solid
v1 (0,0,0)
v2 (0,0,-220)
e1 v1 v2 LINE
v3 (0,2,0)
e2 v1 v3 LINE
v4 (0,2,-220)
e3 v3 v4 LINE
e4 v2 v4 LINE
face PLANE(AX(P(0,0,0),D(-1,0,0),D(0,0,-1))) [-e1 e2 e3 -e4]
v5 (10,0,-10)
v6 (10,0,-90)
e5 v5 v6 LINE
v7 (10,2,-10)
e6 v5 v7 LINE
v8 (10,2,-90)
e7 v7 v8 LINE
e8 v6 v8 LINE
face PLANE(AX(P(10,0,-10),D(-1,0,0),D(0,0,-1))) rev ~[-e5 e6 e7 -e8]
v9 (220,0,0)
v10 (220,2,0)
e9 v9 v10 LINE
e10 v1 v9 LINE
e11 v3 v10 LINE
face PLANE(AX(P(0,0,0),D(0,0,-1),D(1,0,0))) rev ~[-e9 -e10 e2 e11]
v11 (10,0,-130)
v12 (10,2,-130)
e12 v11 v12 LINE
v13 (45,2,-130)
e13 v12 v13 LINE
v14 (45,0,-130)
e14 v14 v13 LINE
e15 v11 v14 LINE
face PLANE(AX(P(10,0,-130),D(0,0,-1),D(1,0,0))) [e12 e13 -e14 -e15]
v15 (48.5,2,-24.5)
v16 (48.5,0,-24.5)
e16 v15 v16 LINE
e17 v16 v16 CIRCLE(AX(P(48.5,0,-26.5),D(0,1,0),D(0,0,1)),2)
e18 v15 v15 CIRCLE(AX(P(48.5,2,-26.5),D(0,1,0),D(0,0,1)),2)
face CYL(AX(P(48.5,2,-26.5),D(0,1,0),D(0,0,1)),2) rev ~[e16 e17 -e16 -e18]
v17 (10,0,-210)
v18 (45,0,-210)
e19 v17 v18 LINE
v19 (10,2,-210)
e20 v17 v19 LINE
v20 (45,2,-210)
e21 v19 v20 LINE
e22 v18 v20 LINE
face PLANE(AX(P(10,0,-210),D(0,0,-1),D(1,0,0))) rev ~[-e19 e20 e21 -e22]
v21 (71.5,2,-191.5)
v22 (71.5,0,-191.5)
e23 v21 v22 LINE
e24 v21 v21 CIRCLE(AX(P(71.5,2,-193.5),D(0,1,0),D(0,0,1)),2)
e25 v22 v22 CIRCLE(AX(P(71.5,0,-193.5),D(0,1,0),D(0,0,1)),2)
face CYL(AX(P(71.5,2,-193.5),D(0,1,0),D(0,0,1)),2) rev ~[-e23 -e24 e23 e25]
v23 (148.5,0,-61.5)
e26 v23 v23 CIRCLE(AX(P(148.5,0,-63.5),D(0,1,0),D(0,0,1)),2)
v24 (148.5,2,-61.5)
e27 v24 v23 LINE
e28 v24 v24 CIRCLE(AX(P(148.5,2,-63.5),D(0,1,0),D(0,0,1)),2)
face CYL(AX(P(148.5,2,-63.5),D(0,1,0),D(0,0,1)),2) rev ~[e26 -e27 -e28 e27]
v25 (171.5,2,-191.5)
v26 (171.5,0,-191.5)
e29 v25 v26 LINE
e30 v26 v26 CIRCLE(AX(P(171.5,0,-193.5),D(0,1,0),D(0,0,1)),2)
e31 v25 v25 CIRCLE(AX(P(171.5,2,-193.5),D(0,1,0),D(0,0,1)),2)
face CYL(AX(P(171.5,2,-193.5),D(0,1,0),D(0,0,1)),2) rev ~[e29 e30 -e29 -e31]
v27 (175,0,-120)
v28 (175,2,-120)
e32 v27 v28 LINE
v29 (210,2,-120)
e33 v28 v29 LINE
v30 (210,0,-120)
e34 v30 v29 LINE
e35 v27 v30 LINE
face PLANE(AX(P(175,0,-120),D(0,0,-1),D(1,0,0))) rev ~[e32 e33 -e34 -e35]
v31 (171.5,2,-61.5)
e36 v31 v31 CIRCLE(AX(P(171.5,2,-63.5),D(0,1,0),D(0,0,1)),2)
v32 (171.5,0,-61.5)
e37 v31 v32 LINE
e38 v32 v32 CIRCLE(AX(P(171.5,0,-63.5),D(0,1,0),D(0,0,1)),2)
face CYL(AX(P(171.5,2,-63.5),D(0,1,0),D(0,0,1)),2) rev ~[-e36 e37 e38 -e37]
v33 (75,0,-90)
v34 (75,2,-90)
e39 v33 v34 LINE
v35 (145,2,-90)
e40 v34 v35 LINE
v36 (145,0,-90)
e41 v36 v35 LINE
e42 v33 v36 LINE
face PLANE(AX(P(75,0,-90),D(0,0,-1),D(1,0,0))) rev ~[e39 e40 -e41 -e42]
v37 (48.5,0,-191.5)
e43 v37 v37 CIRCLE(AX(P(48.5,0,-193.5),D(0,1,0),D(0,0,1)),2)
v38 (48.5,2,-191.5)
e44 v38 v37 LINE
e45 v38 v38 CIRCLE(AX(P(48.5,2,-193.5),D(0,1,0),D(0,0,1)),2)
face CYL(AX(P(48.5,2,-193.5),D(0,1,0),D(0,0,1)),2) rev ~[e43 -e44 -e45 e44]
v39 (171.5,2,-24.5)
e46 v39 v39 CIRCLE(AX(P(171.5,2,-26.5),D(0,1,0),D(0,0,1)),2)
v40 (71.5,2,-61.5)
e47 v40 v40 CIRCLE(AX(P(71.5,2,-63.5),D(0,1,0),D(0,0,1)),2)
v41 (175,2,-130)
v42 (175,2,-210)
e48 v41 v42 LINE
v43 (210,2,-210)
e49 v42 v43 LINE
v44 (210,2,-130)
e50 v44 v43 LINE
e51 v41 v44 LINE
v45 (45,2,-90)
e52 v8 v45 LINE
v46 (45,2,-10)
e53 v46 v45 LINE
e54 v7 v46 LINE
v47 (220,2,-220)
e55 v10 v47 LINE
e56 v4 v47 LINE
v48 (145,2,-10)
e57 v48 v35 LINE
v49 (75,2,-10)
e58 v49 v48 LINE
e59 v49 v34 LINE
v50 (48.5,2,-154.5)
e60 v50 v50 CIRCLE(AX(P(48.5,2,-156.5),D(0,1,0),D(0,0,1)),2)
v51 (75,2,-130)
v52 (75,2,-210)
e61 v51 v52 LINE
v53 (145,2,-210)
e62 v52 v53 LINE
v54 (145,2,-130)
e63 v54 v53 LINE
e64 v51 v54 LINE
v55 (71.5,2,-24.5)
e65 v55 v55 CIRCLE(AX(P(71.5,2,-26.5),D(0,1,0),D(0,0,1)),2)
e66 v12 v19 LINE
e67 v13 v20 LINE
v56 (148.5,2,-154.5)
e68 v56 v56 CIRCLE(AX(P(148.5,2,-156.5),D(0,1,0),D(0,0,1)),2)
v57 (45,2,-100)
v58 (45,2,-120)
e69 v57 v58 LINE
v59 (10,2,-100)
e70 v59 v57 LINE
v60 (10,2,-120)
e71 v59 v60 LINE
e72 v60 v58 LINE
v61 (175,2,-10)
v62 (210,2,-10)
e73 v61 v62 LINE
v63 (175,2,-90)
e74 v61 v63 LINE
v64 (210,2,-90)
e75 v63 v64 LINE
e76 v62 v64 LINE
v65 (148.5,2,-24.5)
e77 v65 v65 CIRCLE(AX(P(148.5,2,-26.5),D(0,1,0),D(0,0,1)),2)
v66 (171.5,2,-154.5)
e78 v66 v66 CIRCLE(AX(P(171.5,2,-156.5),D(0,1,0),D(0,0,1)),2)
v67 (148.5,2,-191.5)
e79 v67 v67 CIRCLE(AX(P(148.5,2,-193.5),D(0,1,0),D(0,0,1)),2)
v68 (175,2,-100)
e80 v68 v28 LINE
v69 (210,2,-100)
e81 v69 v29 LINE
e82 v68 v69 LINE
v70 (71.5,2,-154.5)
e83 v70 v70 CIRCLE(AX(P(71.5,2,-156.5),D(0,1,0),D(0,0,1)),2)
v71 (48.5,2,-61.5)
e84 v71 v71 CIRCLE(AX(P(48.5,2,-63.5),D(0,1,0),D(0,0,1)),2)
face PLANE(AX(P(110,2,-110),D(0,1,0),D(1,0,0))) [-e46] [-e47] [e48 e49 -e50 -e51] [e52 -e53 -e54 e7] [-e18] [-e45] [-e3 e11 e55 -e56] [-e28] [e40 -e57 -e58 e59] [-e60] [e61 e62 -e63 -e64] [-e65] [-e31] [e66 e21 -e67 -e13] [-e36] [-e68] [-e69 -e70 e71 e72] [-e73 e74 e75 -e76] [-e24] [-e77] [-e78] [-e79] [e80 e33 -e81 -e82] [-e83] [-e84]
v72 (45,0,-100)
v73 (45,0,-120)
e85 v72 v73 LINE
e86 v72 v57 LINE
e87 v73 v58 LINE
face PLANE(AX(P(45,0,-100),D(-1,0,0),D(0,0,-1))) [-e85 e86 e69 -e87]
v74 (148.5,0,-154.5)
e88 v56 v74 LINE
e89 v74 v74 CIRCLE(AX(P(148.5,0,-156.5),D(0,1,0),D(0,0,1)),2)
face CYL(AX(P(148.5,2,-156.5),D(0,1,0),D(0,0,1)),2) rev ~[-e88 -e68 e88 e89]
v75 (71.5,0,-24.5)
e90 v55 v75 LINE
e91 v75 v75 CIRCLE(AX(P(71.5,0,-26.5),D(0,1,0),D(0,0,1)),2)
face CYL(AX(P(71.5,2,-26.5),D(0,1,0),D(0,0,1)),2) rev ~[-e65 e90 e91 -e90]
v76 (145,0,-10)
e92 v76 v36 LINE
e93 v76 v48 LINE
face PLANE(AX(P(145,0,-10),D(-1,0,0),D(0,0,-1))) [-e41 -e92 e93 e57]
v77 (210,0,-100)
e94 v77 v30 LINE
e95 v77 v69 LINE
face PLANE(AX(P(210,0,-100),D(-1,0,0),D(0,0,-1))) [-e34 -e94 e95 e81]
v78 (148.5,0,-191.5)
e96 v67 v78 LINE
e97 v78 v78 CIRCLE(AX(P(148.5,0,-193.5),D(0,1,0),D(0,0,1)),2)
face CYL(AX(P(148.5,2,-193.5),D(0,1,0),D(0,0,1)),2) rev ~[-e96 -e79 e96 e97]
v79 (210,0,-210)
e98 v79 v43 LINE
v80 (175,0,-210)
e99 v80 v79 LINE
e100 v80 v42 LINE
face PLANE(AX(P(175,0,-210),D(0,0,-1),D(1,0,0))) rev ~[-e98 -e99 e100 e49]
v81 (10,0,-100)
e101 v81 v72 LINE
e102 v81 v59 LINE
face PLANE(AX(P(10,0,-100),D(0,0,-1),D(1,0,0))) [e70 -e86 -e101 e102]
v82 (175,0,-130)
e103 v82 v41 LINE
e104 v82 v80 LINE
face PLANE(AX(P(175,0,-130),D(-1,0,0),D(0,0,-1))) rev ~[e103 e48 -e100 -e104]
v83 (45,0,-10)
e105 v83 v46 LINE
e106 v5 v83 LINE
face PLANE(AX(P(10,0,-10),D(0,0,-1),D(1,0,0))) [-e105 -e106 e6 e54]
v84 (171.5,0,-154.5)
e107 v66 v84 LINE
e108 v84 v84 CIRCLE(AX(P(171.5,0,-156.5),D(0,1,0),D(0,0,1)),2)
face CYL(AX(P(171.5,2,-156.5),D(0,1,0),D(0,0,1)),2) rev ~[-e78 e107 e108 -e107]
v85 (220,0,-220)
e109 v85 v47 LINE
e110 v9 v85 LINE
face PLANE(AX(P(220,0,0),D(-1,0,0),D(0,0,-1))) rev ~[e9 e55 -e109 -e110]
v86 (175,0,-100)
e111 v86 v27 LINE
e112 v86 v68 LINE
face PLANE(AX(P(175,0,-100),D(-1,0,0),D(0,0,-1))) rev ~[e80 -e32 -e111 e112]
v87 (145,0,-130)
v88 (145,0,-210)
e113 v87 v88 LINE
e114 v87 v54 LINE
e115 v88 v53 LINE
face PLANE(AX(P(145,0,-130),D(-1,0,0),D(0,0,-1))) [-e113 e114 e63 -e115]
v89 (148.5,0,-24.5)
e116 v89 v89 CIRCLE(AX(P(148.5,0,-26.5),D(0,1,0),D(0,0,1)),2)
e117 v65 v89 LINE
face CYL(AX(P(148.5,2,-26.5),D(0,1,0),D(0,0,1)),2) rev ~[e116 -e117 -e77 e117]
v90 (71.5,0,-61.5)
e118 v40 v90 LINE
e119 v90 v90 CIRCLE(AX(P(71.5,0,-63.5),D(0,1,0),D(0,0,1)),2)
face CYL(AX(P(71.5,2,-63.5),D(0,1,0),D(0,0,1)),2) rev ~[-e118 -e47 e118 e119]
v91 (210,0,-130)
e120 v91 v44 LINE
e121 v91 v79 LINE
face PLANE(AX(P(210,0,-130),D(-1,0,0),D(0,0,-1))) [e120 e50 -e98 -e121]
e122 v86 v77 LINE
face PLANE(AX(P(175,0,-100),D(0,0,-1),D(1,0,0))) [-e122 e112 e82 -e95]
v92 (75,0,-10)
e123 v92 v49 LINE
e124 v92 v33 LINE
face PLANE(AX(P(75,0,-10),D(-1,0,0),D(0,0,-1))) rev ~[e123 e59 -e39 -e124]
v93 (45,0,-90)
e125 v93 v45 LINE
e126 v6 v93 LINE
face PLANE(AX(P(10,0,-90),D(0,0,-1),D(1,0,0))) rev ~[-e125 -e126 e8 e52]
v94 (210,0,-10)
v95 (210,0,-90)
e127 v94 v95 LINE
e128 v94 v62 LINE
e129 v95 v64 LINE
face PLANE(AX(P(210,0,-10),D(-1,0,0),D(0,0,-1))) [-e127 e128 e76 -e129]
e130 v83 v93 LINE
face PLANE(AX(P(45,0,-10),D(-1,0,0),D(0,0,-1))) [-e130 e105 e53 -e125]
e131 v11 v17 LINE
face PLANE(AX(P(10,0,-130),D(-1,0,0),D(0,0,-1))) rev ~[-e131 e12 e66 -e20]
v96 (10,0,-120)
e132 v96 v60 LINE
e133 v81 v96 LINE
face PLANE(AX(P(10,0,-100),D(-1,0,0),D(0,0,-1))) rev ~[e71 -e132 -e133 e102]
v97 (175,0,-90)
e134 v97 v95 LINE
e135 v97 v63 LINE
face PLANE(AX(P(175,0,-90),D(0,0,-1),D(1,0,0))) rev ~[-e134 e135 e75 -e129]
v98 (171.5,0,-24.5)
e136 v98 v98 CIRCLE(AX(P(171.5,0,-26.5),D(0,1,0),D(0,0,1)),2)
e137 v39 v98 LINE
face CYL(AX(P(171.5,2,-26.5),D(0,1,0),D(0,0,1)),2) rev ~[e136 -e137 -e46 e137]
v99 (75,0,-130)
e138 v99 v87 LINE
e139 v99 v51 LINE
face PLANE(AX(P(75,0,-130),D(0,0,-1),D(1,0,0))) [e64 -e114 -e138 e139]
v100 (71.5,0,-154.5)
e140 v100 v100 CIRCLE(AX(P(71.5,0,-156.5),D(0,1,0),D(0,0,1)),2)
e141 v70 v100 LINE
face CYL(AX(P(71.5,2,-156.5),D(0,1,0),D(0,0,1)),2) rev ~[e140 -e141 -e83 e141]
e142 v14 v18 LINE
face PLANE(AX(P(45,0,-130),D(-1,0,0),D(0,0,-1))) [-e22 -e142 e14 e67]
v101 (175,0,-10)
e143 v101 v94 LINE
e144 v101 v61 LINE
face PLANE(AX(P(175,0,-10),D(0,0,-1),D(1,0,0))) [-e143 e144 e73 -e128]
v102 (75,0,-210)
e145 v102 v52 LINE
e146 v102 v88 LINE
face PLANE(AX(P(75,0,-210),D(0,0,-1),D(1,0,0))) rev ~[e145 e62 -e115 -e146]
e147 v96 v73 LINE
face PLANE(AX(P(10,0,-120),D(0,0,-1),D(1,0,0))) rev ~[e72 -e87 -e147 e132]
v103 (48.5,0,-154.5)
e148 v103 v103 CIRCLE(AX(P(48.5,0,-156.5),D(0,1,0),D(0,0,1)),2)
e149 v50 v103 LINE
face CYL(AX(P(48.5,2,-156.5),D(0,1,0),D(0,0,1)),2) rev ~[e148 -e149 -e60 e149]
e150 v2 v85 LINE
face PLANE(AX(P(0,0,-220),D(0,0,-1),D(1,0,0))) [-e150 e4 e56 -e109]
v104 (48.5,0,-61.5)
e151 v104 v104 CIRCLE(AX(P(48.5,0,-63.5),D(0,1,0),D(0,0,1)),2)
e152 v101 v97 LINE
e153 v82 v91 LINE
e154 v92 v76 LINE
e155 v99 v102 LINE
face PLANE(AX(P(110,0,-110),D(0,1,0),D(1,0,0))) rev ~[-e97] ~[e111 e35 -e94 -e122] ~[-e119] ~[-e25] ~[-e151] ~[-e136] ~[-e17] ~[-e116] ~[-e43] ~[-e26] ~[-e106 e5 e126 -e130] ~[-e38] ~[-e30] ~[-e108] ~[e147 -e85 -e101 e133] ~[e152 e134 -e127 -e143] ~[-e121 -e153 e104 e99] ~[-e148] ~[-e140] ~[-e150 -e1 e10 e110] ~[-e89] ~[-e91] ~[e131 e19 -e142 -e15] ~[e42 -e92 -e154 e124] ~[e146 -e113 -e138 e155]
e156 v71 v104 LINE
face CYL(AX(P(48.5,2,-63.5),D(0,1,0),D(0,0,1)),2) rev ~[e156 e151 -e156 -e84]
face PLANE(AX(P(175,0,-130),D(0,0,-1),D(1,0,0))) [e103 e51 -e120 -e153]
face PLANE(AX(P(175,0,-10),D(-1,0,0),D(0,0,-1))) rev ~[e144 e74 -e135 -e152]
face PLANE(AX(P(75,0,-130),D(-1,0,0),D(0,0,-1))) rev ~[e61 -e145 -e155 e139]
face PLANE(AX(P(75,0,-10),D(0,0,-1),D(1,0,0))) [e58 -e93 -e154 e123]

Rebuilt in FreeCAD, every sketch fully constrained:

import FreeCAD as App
import Part
import Sketcher
from FreeCAD import Vector

doc = App.newDocument("Part")
body = doc.addObject("PartDesign::Body", "Body")

# Sketch on XZ plane
sketch1 = body.newObject("Sketcher::SketchObject", "Sketch")
sketch1.AttachmentSupport = (doc.getObject("XZ_Plane"), [""])
sketch1.MapMode = "FlatFace"
sketch1.addGeometry([
    Part.LineSegment(Vector(0, -220, 0), Vector(0, 0, 0)),  # 0
    Part.LineSegment(Vector(0, 0, 0), Vector(220, 0, 0)),  # 1
    Part.LineSegment(Vector(220, 0, 0), Vector(220, -220, 0)),  # 2
    Part.LineSegment(Vector(220, -220, 0), Vector(0, -220, 0)),  # 3
    Part.LineSegment(Vector(45, -10, 0), Vector(10, -10, 0)),  # 4
    Part.LineSegment(Vector(10, -10, 0), Vector(10, -90, 0)),  # 5
    Part.LineSegment(Vector(10, -90, 0), Vector(45, -90, 0)),  # 6
    Part.LineSegment(Vector(45, -90, 0), Vector(45, -10, 0)),  # 7
    Part.LineSegment(Vector(145, -10, 0), Vector(75, -10, 0)),  # 8
    Part.LineSegment(Vector(75, -10, 0), Vector(75, -90, 0)),  # 9
    Part.LineSegment(Vector(75, -90, 0), Vector(145, -90, 0)),  # 10
    Part.LineSegment(Vector(145, -90, 0), Vector(145, -10, 0)),  # 11
    Part.LineSegment(Vector(210, -10, 0), Vector(175, -10, 0)),  # 12
    Part.LineSegment(Vector(175, -10, 0), Vector(175, -90, 0)),  # 13
    Part.LineSegment(Vector(175, -90, 0), Vector(210, -90, 0)),  # 14
    Part.LineSegment(Vector(210, -90, 0), Vector(210, -10, 0)),  # 15
    Part.LineSegment(Vector(45, -100, 0), Vector(10, -100, 0)),  # 16
    Part.LineSegment(Vector(10, -100, 0), Vector(10, -120, 0)),  # 17
    Part.LineSegment(Vector(10, -120, 0), Vector(45, -120, 0)),  # 18
    Part.LineSegment(Vector(45, -120, 0), Vector(45, -100, 0)),  # 19
    Part.LineSegment(Vector(45, -130, 0), Vector(10, -130, 0)),  # 20
    Part.LineSegment(Vector(10, -130, 0), Vector(10, -210, 0)),  # 21
    Part.LineSegment(Vector(10, -210, 0), Vector(45, -210, 0)),  # 22
    Part.LineSegment(Vector(45, -210, 0), Vector(45, -130, 0)),  # 23
    Part.LineSegment(Vector(210, -100, 0), Vector(175, -100, 0)),  # 24
    Part.LineSegment(Vector(175, -100, 0), Vector(175, -120, 0)),  # 25
    Part.LineSegment(Vector(175, -120, 0), Vector(210, -120, 0)),  # 26
    Part.LineSegment(Vector(210, -120, 0), Vector(210, -100, 0)),  # 27
    Part.LineSegment(Vector(145, -130, 0), Vector(75, -130, 0)),  # 28
    Part.LineSegment(Vector(75, -130, 0), Vector(75, -210, 0)),  # 29
    Part.LineSegment(Vector(75, -210, 0), Vector(145, -210, 0)),  # 30
    Part.LineSegment(Vector(145, -210, 0), Vector(145, -130, 0)),  # 31
    Part.LineSegment(Vector(210, -130, 0), Vector(175, -130, 0)),  # 32
    Part.LineSegment(Vector(175, -130, 0), Vector(175, -210, 0)),  # 33
    Part.LineSegment(Vector(175, -210, 0), Vector(210, -210, 0)),  # 34
    Part.LineSegment(Vector(210, -210, 0), Vector(210, -130, 0)),  # 35
], False)
sketch1.addConstraint([
    Sketcher.Constraint("Coincident", 0, 2, 1, 1),
    Sketcher.Constraint("Coincident", 1, 2, 2, 1),
    Sketcher.Constraint("Coincident", 2, 2, 3, 1),
    Sketcher.Constraint("Coincident", 3, 2, 0, 1),
    Sketcher.Constraint("Coincident", 4, 2, 5, 1),
    Sketcher.Constraint("Coincident", 5, 2, 6, 1),
    Sketcher.Constraint("Coincident", 6, 2, 7, 1),
    Sketcher.Constraint("Coincident", 7, 2, 4, 1),
    Sketcher.Constraint("Coincident", 8, 2, 9, 1),
    Sketcher.Constraint("Coincident", 9, 2, 10, 1),
    Sketcher.Constraint("Coincident", 10, 2, 11, 1),
    Sketcher.Constraint("Coincident", 11, 2, 8, 1),
    Sketcher.Constraint("Coincident", 12, 2, 13, 1),
    Sketcher.Constraint("Coincident", 13, 2, 14, 1),
    Sketcher.Constraint("Coincident", 14, 2, 15, 1),
    Sketcher.Constraint("Coincident", 15, 2, 12, 1),
    Sketcher.Constraint("Coincident", 16, 2, 17, 1),
    Sketcher.Constraint("Coincident", 17, 2, 18, 1),
    Sketcher.Constraint("Coincident", 18, 2, 19, 1),
    Sketcher.Constraint("Coincident", 19, 2, 16, 1),
    Sketcher.Constraint("Coincident", 20, 2, 21, 1),
    Sketcher.Constraint("Coincident", 21, 2, 22, 1),
    Sketcher.Constraint("Coincident", 22, 2, 23, 1),
    Sketcher.Constraint("Coincident", 23, 2, 20, 1),
    Sketcher.Constraint("Coincident", 24, 2, 25, 1),
    Sketcher.Constraint("Coincident", 25, 2, 26, 1),
    Sketcher.Constraint("Coincident", 26, 2, 27, 1),
    Sketcher.Constraint("Coincident", 27, 2, 24, 1),
    Sketcher.Constraint("Coincident", 28, 2, 29, 1),
    Sketcher.Constraint("Coincident", 29, 2, 30, 1),
    Sketcher.Constraint("Coincident", 30, 2, 31, 1),
    Sketcher.Constraint("Coincident", 31, 2, 28, 1),
    Sketcher.Constraint("Coincident", 32, 2, 33, 1),
    Sketcher.Constraint("Coincident", 33, 2, 34, 1),
    Sketcher.Constraint("Coincident", 34, 2, 35, 1),
    Sketcher.Constraint("Coincident", 35, 2, 32, 1),
    Sketcher.Constraint("Vertical", 0),
    Sketcher.Constraint("Horizontal", 1),
    Sketcher.Constraint("Vertical", 2),
    Sketcher.Constraint("Horizontal", 3),
    Sketcher.Constraint("Horizontal", 4),
    Sketcher.Constraint("Vertical", 5),
    Sketcher.Constraint("Horizontal", 6),
    Sketcher.Constraint("Vertical", 7),
    Sketcher.Constraint("Horizontal", 8),
    Sketcher.Constraint("Vertical", 9),
    Sketcher.Constraint("Horizontal", 10),
    Sketcher.Constraint("Vertical", 11),
    Sketcher.Constraint("Horizontal", 12),
    Sketcher.Constraint("Vertical", 13),
    Sketcher.Constraint("Horizontal", 14),
    Sketcher.Constraint("Vertical", 15),
    Sketcher.Constraint("Horizontal", 16),
    Sketcher.Constraint("Vertical", 17),
    Sketcher.Constraint("Horizontal", 18),
    Sketcher.Constraint("Vertical", 19),
    Sketcher.Constraint("Horizontal", 20),
    Sketcher.Constraint("Vertical", 21),
    Sketcher.Constraint("Horizontal", 22),
    Sketcher.Constraint("Vertical", 23),
    Sketcher.Constraint("Horizontal", 24),
    Sketcher.Constraint("Vertical", 25),
    Sketcher.Constraint("Horizontal", 26),
    Sketcher.Constraint("Vertical", 27),
    Sketcher.Constraint("Horizontal", 28),
    Sketcher.Constraint("Vertical", 29),
    Sketcher.Constraint("Horizontal", 30),
    Sketcher.Constraint("Vertical", 31),
    Sketcher.Constraint("Horizontal", 32),
    Sketcher.Constraint("Vertical", 33),
    Sketcher.Constraint("Horizontal", 34),
    Sketcher.Constraint("Vertical", 35),
    Sketcher.Constraint("Coincident", 0, 2, -1, 1),
    Sketcher.Constraint("Horizontal", 7, 2, 8, 2),
    Sketcher.Constraint("Horizontal", 6, 2, 9, 2),
    Sketcher.Constraint("Horizontal", 11, 2, 12, 2),
    Sketcher.Constraint("Horizontal", 10, 2, 13, 2),
    Sketcher.Constraint("Horizontal", 19, 2, 24, 2),
    Sketcher.Constraint("Horizontal", 18, 2, 25, 2),
    Sketcher.Constraint("Horizontal", 23, 2, 28, 2),
    Sketcher.Constraint("Horizontal", 22, 2, 29, 2),
    Sketcher.Constraint("Horizontal", 31, 2, 32, 2),
    Sketcher.Constraint("Horizontal", 30, 2, 33, 2),
    Sketcher.Constraint("Vertical", 5, 2, 16, 2),
    Sketcher.Constraint("Vertical", 7, 2, 18, 2),
    Sketcher.Constraint("Vertical", 17, 2, 20, 2),
    Sketcher.Constraint("Vertical", 19, 2, 22, 2),
    Sketcher.Constraint("Vertical", 13, 2, 24, 2),
    Sketcher.Constraint("Vertical", 15, 2, 26, 2),
    Sketcher.Constraint("Vertical", 9, 2, 28, 2),
    Sketcher.Constraint("Vertical", 11, 2, 30, 2),
    Sketcher.Constraint("Vertical", 25, 2, 32, 2),
    Sketcher.Constraint("Vertical", 27, 2, 34, 2),
    Sketcher.Constraint("Equal", 6, 12),
    Sketcher.Constraint("Equal", 3, 0),
    Sketcher.Constraint("Equal", 15, 21),
    Sketcher.Constraint("DistanceX", 1, 1, 1, 2, 220.0),
    Sketcher.Constraint("DistanceX", 4, 2, 4, 1, 35.0),
    Sketcher.Constraint("DistanceX", 8, 2, 8, 1, 70.0),
    Sketcher.Constraint("DistanceY", 5, 2, 5, 1, 80.0),
    Sketcher.Constraint("DistanceY", 17, 2, 17, 1, 20.0),
    Sketcher.Constraint("DistanceX", -1, 1, 4, 2, 10.0),
    Sketcher.Constraint("DistanceY", 4, 2, -1, 1, 10.0),
    Sketcher.Constraint("DistanceX", -1, 1, 8, 2, 75.0),
    Sketcher.Constraint("DistanceX", -1, 1, 12, 2, 175.0),
    Sketcher.Constraint("DistanceY", 16, 2, -1, 1, 100.0),
    Sketcher.Constraint("DistanceY", 20, 2, -1, 1, 130.0),
])
pad1 = body.newObject("PartDesign::Pad", "Pad")
pad1.Profile = sketch1
pad1.Length = 2
pad1.Reversed = True

# Sketch on XZ plane
sketch2 = body.newObject("Sketcher::SketchObject", "Sketch001")
sketch2.AttachmentSupport = (doc.getObject("XZ_Plane"), [""])
sketch2.MapMode = "FlatFace"
sketch2.AttachmentOffset = App.Placement(Vector(0, 0, -2), App.Rotation())
sketch2.addGeometry([
    Part.Circle(Vector(171.5, -26.5, 0), Vector(0, 0, 1), 2),  # 0
    Part.Circle(Vector(148.5, -26.5, 0), Vector(0, 0, 1), 2),  # 1
    Part.Circle(Vector(71.5, -26.5, 0), Vector(0, 0, 1), 2),  # 2
    Part.Circle(Vector(48.5, -26.5, 0), Vector(0, 0, 1), 2),  # 3
    Part.Circle(Vector(48.5, -63.5, 0), Vector(0, 0, 1), 2),  # 4
    Part.Circle(Vector(71.5, -63.5, 0), Vector(0, 0, 1), 2),  # 5
    Part.Circle(Vector(148.5, -63.5, 0), Vector(0, 0, 1), 2),  # 6
    Part.Circle(Vector(171.5, -63.5, 0), Vector(0, 0, 1), 2),  # 7
    Part.Circle(Vector(171.5, -156.5, 0), Vector(0, 0, 1), 2),  # 8
    Part.Circle(Vector(148.5, -156.5, 0), Vector(0, 0, 1), 2),  # 9
    Part.Circle(Vector(148.5, -193.5, 0), Vector(0, 0, 1), 2),  # 10
    Part.Circle(Vector(171.5, -193.5, 0), Vector(0, 0, 1), 2),  # 11
    Part.Circle(Vector(71.5, -193.5, 0), Vector(0, 0, 1), 2),  # 12
    Part.Circle(Vector(71.5, -156.5, 0), Vector(0, 0, 1), 2),  # 13
    Part.Circle(Vector(48.5, -156.5, 0), Vector(0, 0, 1), 2),  # 14
    Part.Circle(Vector(48.5, -193.5, 0), Vector(0, 0, 1), 2),  # 15
], False)
sketch2.addConstraint([
    Sketcher.Constraint("Equal", 0, 1),
    Sketcher.Constraint("Equal", 1, 2),
    Sketcher.Constraint("Equal", 2, 3),
    Sketcher.Constraint("Equal", 3, 4),
    Sketcher.Constraint("Equal", 4, 5),
    Sketcher.Constraint("Equal", 5, 6),
    Sketcher.Constraint("Equal", 6, 7),
    Sketcher.Constraint("Equal", 7, 8),
    Sketcher.Constraint("Equal", 8, 9),
    Sketcher.Constraint("Equal", 9, 10),
    Sketcher.Constraint("Equal", 10, 11),
    Sketcher.Constraint("Equal", 11, 12),
    Sketcher.Constraint("Equal", 12, 13),
    Sketcher.Constraint("Equal", 13, 14),
    Sketcher.Constraint("Equal", 14, 15),
    Sketcher.Constraint("Horizontal", 0, 3, 1, 3),
    Sketcher.Constraint("Horizontal", 1, 3, 2, 3),
    Sketcher.Constraint("Horizontal", 2, 3, 3, 3),
    Sketcher.Constraint("Horizontal", 4, 3, 5, 3),
    Sketcher.Constraint("Horizontal", 5, 3, 6, 3),
    Sketcher.Constraint("Horizontal", 6, 3, 7, 3),
    Sketcher.Constraint("Horizontal", 8, 3, 9, 3),
    Sketcher.Constraint("Horizontal", 10, 3, 11, 3),
    Sketcher.Constraint("Horizontal", 11, 3, 12, 3),
    Sketcher.Constraint("Horizontal", 9, 3, 13, 3),
    Sketcher.Constraint("Horizontal", 13, 3, 14, 3),
    Sketcher.Constraint("Horizontal", 12, 3, 15, 3),
    Sketcher.Constraint("Vertical", 3, 3, 4, 3),
    Sketcher.Constraint("Vertical", 2, 3, 5, 3),
    Sketcher.Constraint("Vertical", 1, 3, 6, 3),
    Sketcher.Constraint("Vertical", 0, 3, 7, 3),
    Sketcher.Constraint("Vertical", 7, 3, 8, 3),
    Sketcher.Constraint("Vertical", 6, 3, 9, 3),
    Sketcher.Constraint("Vertical", 9, 3, 10, 3),
    Sketcher.Constraint("Vertical", 8, 3, 11, 3),
    Sketcher.Constraint("Vertical", 5, 3, 12, 3),
    Sketcher.Constraint("Vertical", 12, 3, 13, 3),
    Sketcher.Constraint("Vertical", 4, 3, 14, 3),
    Sketcher.Constraint("Vertical", 14, 3, 15, 3),
    Sketcher.Constraint("Diameter", 0, 4.0),
    Sketcher.Constraint("DistanceX", 1, 3, 0, 3, 23.0),
    Sketcher.Constraint("DistanceX", 2, 3, 1, 3, 77.0),
    Sketcher.Constraint("DistanceX", 3, 3, 2, 3, 23.0),
    Sketcher.Constraint("DistanceY", 4, 3, 3, 3, 37.0),
    Sketcher.Constraint("DistanceY", 8, 3, 7, 3, 93.0),
    Sketcher.Constraint("DistanceY", 10, 3, 9, 3, 37.0),
    Sketcher.Constraint("DistanceX", -1, 1, 0, 3, 171.5),
    Sketcher.Constraint("DistanceY", 0, 3, -1, 1, 26.5),
])
pocket1 = body.newObject("PartDesign::Pocket", "Pocket")
pocket1.Profile = sketch2
pocket1.Length = 2
pocket1.Reversed = True

doc.recompute()
